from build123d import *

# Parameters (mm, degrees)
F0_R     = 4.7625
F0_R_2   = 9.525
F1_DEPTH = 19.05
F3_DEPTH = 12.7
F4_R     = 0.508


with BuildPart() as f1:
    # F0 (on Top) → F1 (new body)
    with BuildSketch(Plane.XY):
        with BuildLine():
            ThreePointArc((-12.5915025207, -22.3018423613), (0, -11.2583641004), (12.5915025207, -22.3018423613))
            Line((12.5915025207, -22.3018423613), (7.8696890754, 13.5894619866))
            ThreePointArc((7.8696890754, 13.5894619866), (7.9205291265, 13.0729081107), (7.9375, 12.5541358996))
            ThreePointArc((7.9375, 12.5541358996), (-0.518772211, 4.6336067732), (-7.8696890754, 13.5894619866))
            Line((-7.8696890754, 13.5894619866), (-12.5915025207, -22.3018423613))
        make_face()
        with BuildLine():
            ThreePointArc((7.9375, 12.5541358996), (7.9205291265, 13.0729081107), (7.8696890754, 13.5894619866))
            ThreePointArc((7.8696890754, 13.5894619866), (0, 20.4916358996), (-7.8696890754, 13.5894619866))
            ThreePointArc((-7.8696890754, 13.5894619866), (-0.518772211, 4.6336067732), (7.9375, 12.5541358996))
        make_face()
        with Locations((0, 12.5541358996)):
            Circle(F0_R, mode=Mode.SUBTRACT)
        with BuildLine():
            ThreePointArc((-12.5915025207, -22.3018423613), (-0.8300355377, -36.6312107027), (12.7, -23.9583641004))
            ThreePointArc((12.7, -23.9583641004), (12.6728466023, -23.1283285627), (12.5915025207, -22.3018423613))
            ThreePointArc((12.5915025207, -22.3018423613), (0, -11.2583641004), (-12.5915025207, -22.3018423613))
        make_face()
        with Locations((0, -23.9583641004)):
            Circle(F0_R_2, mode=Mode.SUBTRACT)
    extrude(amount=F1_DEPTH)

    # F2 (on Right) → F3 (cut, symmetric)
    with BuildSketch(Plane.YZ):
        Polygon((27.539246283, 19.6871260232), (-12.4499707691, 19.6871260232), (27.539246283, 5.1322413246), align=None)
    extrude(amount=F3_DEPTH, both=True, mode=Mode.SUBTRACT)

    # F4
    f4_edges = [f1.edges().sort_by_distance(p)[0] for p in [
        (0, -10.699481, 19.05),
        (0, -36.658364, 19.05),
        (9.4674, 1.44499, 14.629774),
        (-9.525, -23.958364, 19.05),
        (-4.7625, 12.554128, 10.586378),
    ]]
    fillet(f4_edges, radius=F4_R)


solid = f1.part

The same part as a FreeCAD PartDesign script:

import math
import FreeCAD as App
import Part
import Sketcher
from FreeCAD import Vector
Q = App.Units.Quantity


def edges_at(feature, points):
    """Names of the edges that pass closest to the given points."""
    edges = feature.Shape.Edges
    near = lambda p: min(range(len(edges)), key=lambda i: edges[i].distToShape(Part.Vertex(*p))[0])
    return sorted({f"Edge{near(p) + 1}" for p in points})


def add_polygon(sketch, points):
    """Adds a closed chain of lines whose ends are joined by coincident constraints."""
    first, n = sketch.GeometryCount, len(points)
    for a, b in zip(points, points[1:] + points[:1]):
        sketch.addGeometry(Part.LineSegment(App.Vector(*a, 0), App.Vector(*b, 0)), False)
    for i in range(n):
        sketch.addConstraint(Sketcher.Constraint("Coincident", first + i, 2, first + (i + 1) % n, 1))

doc = App.newDocument("Part")
body = doc.addObject("PartDesign::Body", "Body")

# Sketch on XY plane
sketch1 = doc.addObject("Sketcher::SketchObject", "Sketch")
body.addObject(sketch1)
sketch1.AttachmentSupport = (doc.XY_Plane, [""])
sketch1.MapMode = "FlatFace"
sketch1.addGeometry(Part.LineSegment(Vector(-7.9, 13.6, 0), Vector(-12.6, -22.3, 0)), False)
sketch1.addGeometry(Part.ArcOfCircle(Part.Circle(Vector(0, -24, 0), Vector(0, 0, 1), 12.7), math.radians(173), math.radians(360)), False)
sketch1.addGeometry(Part.ArcOfCircle(Part.Circle(Vector(0, -24, 0), Vector(0, 0, 1), 12.7), math.radians(0), math.radians(7.49)), False)
sketch1.addGeometry(Part.LineSegment(Vector(12.6, -22.3, 0), Vector(7.9, 13.6, 0)), False)
sketch1.addGeometry(Part.ArcOfCircle(Part.Circle(Vector(0, 12.6, 0), Vector(0, 0, 1), 7.9), math.radians(7), math.radians(173)), False)
sketch1.addGeometry(Part.Circle(Vector(0, -24, 0), Vector(0, 0, 1), 9.5), False)
sketch1.addGeometry(Part.Circle(Vector(0, 12.6, 0), Vector(0, 0, 1), 4.8), False)
sketch1.addConstraint(Sketcher.Constraint("Tangent", 0, 2, 1, 1))
sketch1.addConstraint(Sketcher.Constraint("Tangent", 1, 2, 2, 1))
sketch1.addConstraint(Sketcher.Constraint("Tangent", 2, 2, 3, 1))
sketch1.addConstraint(Sketcher.Constraint("Tangent", 3, 2, 4, 1))
sketch1.addConstraint(Sketcher.Constraint("Tangent", 4, 2, 0, 1))
sketch1.addConstraint(Sketcher.Constraint("Coincident", 5, 3, 1, 3))
sketch1.addConstraint(Sketcher.Constraint("Coincident", 6, 3, 4, 3))
sketch1.addConstraint(Sketcher.Constraint("Equal", 1, 2))
sketch1.addConstraint(Sketcher.Constraint("Symmetric", 0, 2, 2, 2, -2))
sketch1.addConstraint(Sketcher.Constraint("Horizontal", 5, 3, 1, 2))
sketch1.addConstraint(Sketcher.Constraint("Radius", 1, Q("0.5 in")))
sketch1.addConstraint(Sketcher.Constraint("Diameter", 5, Q("0.75 in")))
sketch1.addConstraint(Sketcher.Constraint("Diameter", 6, Q("0.375 in")))
sketch1.addConstraint(Sketcher.Constraint("Radius", 4, Q("0.3125 in")))
sketch1.addConstraint(Sketcher.Constraint("DistanceY", 1, 3, 4, 3, Q("1.4375 in")))
sketch1.addConstraint(Sketcher.Constraint("DistanceY", -1, 1, 3, 2, Q("13.589462 mm")))
pad1 = doc.addObject("PartDesign::Pad", "Pad")
body.addObject(pad1)
pad1.Profile = sketch1
pad1.Length = Q("0.75 in")

# Sketch on YZ plane
sketch2 = doc.addObject("Sketcher::SketchObject", "Sketch001")
body.addObject(sketch2)
sketch2.AttachmentSupport = (doc.YZ_Plane, [""])
sketch2.MapMode = "FlatFace"
add_polygon(sketch2, [(28, 20), (-12, 20), (28, 5)])  # lines 0-2
sketch2.addConstraint(Sketcher.Constraint("Horizontal", 0))
sketch2.addConstraint(Sketcher.Constraint("Vertical", 2))
sketch2.addConstraint(Sketcher.Constraint("Angle", 1, Q("-20 deg")))
sketch2.addConstraint(Sketcher.Constraint("DistanceX", 0, 2, 0, 1, Q("39.989217 mm")))
sketch2.addConstraint(Sketcher.Constraint("DistanceX", 0, 2, -1, 1, Q("12.449971 mm")))
sketch2.addConstraint(Sketcher.Constraint("DistanceY", -1, 1, 1, 2, Q("5.132241 mm")))
pocket1 = doc.addObject("PartDesign::Pocket", "Pocket")
body.addObject(pocket1)
pocket1.Profile = sketch2
pocket1.Length = Q("1 in")
pocket1.Midplane = True
doc.recompute()

fillet = doc.addObject("PartDesign::Fillet", "Fillet")
body.addObject(fillet)
fillet.Base = (pocket1, edges_at(pocket1, [
    (0, -10.699, 19.05),
    (-0.83, -36.631, 19.05),
    (9.467, 1.445, 14.63),
    (-9.525, -23.958, 19.05),
    (-4.763, 12.554, 10.586),
]))
fillet.Radius = Q("0.02 in")

doc.recompute()
